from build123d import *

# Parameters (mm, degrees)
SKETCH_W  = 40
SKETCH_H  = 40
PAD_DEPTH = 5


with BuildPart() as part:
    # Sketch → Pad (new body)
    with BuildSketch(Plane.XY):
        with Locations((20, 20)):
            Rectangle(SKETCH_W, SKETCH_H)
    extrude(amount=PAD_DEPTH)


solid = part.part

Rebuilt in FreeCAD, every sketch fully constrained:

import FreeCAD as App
import Part
import Sketcher
from FreeCAD import Vector
Q = App.Units.Quantity

doc = App.newDocument("Part")
body = doc.addObject("PartDesign::Body", "Body")

# Sketch on XY plane
sketch1 = doc.addObject("Sketcher::SketchObject", "Sketch")
body.addObject(sketch1)
sketch1.AttachmentSupport = (doc.XY_Plane, [""])
sketch1.MapMode = "FlatFace"
sketch1.addGeometry(Part.LineSegment(Vector(0, 40, 0), Vector(0, 0, 0)), False)
sketch1.addGeometry(Part.LineSegment(Vector(0, 0, 0), Vector(40, 0, 0)), False)
sketch1.addGeometry(Part.LineSegment(Vector(40, 0, 0), Vector(40, 40, 0)), False)
sketch1.addGeometry(Part.LineSegment(Vector(40, 40, 0), Vector(0, 40, 0)), False)
sketch1.addConstraint(Sketcher.Constraint("Coincident", 0, 2, 1, 1))
sketch1.addConstraint(Sketcher.Constraint("Coincident", 1, 2, 2, 1))
sketch1.addConstraint(Sketcher.Constraint("Coincident", 2, 2, 3, 1))
sketch1.addConstraint(Sketcher.Constraint("Coincident", 3, 2, 0, 1))
sketch1.addConstraint(Sketcher.Constraint("Vertical", 0))
sketch1.addConstraint(Sketcher.Constraint("Horizontal", 1))
sketch1.addConstraint(Sketcher.Constraint("Vertical", 2))
sketch1.addConstraint(Sketcher.Constraint("Horizontal", 3))
sketch1.addConstraint(Sketcher.Constraint("Coincident", 0, 2, -1, 1))
sketch1.addConstraint(Sketcher.Constraint("Equal", 3, 0))
sketch1.addConstraint(Sketcher.Constraint("DistanceX", 1, 1, 1, 2, Q("40 mm")))
pad1 = doc.addObject("PartDesign::Pad", "Pad")
body.addObject(pad1)
pad1.Profile = sketch1
pad1.Length = 5

doc.recompute()
